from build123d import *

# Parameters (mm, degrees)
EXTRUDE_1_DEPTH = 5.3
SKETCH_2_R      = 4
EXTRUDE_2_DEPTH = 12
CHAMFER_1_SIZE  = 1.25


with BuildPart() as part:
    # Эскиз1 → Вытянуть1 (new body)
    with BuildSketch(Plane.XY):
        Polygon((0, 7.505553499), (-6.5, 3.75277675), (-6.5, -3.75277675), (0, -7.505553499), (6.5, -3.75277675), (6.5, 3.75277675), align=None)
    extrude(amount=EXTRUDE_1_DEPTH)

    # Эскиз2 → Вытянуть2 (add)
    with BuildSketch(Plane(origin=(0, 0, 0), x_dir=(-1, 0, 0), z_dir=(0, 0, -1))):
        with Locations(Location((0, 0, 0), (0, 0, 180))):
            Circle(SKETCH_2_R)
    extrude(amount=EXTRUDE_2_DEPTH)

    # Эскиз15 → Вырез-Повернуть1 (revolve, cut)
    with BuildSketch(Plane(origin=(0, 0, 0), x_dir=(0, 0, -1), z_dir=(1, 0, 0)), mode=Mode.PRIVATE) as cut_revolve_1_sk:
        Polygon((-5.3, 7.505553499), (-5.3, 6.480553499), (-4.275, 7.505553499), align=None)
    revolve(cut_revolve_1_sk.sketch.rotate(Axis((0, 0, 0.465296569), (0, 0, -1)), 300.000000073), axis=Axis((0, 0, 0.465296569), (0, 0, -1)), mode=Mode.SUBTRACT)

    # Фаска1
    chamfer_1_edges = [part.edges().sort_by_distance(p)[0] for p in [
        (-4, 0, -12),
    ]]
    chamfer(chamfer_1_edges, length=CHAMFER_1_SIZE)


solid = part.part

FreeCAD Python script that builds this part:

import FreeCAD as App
import Part
import Sketcher

V = App.Vector
Q = App.Units.Quantity


def edges_at(feature, points):
    """Names of the edges that pass closest to the given points."""
    edges = feature.Shape.Edges
    near = lambda p: min(range(len(edges)), key=lambda i: edges[i].distToShape(Part.Vertex(*p))[0])
    return sorted({f"Edge{near(p) + 1}" for p in points})

doc = App.newDocument("Part")
body = doc.addObject("PartDesign::Body", "Body")

sketch1 = body.newObject("Sketcher::SketchObject", "Sketch")
sketch1.AttachmentSupport = (doc.getObject("XY_Plane"), [""])
sketch1.MapMode = "FlatFace"
sketch1.addGeometry(Part.LineSegment(V(0, 8, 0), V(-6, 4, 0)), False)
sketch1.addGeometry(Part.LineSegment(V(-6, 4, 0), V(-6, -4, 0)), False)
sketch1.addGeometry(Part.LineSegment(V(-6, -4, 0), V(0, -8, 0)), False)
sketch1.addGeometry(Part.LineSegment(V(0, -8, 0), V(6, -4, 0)), False)
sketch1.addGeometry(Part.LineSegment(V(6, -4, 0), V(6, 4, 0)), False)
sketch1.addGeometry(Part.LineSegment(V(6, 4, 0), V(0, 8, 0)), False)
sketch1.addConstraint(Sketcher.Constraint("Coincident", 0, 2, 1, 1))
sketch1.addConstraint(Sketcher.Constraint("Coincident", 1, 2, 2, 1))
sketch1.addConstraint(Sketcher.Constraint("Coincident", 2, 2, 3, 1))
sketch1.addConstraint(Sketcher.Constraint("Coincident", 3, 2, 4, 1))
sketch1.addConstraint(Sketcher.Constraint("Coincident", 4, 2, 5, 1))
sketch1.addConstraint(Sketcher.Constraint("Coincident", 5, 2, 0, 1))
sketch1.addConstraint(Sketcher.Constraint("Vertical", 1))
sketch1.addConstraint(Sketcher.Constraint("Vertical", 4))
sketch1.addConstraint(Sketcher.Constraint("Symmetric", 0, 2, 3, 2, -1, 1))
sketch1.addConstraint(Sketcher.Constraint("Symmetric", 2, 2, 5, 2, -1, 1))
sketch1.addConstraint(Sketcher.Constraint("PointOnObject", 2, 2, -2))
sketch1.addConstraint(Sketcher.Constraint("Parallel", 2, 5))
sketch1.addConstraint(Sketcher.Constraint("Horizontal", 1, 2, 3, 2))
sketch1.addConstraint(Sketcher.Constraint("Angle", 0, Q("-150 deg")))
sketch1.addConstraint(Sketcher.Constraint("DistanceX", 1, 2, 3, 2, Q("13 mm")))
sketch1.addConstraint(Sketcher.Constraint("DistanceY", 1, 2, 1, 1, Q("7.505554 mm")))
pad1 = body.newObject("PartDesign::Pad", "Pad")
pad1.Profile = sketch1
pad1.Length = 5.3

sketch2 = body.newObject("Sketcher::SketchObject", "Sketch001")
sketch2.AttachmentSupport = (doc.getObject("XY_Plane"), [""])
sketch2.MapMode = "FlatFace"
sketch2.addGeometry(Part.Circle(V(0, 0, 0), V(0, 0, 1), 4), False)
sketch2.addConstraint(Sketcher.Constraint("Coincident", 0, 3, -1, 1))
sketch2.addConstraint(Sketcher.Constraint("Diameter", 0, Q("8 mm")))
pad2 = body.newObject("PartDesign::Pad", "Pad001")
pad2.Profile = sketch2
pad2.Length = 12
pad2.Reversed = True

sketch3 = body.newObject("Sketcher::SketchObject", "Sketch002")
sketch3.AttachmentSupport = (doc.getObject("YZ_Plane"), [""])
sketch3.MapMode = "FlatFace"
sketch3.addGeometry(Part.LineSegment(V(7.5, 5.3, 0), V(6.5, 5.3, 0)), False)
sketch3.addGeometry(Part.LineSegment(V(6.5, 5.3, 0), V(7.5, 4.3, 0)), False)
sketch3.addGeometry(Part.LineSegment(V(7.5, 4.3, 0), V(7.5, 5.3, 0)), False)
sketch3.addConstraint(Sketcher.Constraint("Coincident", 0, 2, 1, 1))
sketch3.addConstraint(Sketcher.Constraint("Coincident", 1, 2, 2, 1))
sketch3.addConstraint(Sketcher.Constraint("Coincident", 2, 2, 0, 1))
sketch3.addConstraint(Sketcher.Constraint("Horizontal", 0))
sketch3.addConstraint(Sketcher.Constraint("Vertical", 2))
sketch3.addConstraint(Sketcher.Constraint("Equal", 0, 2))
sketch3.addConstraint(Sketcher.Constraint("DistanceY", -1, 1, 0, 2, Q("5.3 mm")))
sketch3.addConstraint(Sketcher.Constraint("DistanceX", 0, 2, 0, 1, Q("1.025 mm")))
sketch3.addConstraint(Sketcher.Constraint("DistanceX", -1, 1, 0, 2, Q("6.480553 mm")))
groove = body.newObject("PartDesign::Groove", "Groove")
groove.Profile = sketch3
groove.ReferenceAxis = (sketch3, ["V_Axis"])
groove.Angle = 360
doc.recompute()

chamfer = body.newObject("PartDesign::Chamfer", "Chamfer")
chamfer.Base = (groove, edges_at(groove, [(-4, 0, -12)]))
chamfer.Size = 1.25

doc.recompute()
